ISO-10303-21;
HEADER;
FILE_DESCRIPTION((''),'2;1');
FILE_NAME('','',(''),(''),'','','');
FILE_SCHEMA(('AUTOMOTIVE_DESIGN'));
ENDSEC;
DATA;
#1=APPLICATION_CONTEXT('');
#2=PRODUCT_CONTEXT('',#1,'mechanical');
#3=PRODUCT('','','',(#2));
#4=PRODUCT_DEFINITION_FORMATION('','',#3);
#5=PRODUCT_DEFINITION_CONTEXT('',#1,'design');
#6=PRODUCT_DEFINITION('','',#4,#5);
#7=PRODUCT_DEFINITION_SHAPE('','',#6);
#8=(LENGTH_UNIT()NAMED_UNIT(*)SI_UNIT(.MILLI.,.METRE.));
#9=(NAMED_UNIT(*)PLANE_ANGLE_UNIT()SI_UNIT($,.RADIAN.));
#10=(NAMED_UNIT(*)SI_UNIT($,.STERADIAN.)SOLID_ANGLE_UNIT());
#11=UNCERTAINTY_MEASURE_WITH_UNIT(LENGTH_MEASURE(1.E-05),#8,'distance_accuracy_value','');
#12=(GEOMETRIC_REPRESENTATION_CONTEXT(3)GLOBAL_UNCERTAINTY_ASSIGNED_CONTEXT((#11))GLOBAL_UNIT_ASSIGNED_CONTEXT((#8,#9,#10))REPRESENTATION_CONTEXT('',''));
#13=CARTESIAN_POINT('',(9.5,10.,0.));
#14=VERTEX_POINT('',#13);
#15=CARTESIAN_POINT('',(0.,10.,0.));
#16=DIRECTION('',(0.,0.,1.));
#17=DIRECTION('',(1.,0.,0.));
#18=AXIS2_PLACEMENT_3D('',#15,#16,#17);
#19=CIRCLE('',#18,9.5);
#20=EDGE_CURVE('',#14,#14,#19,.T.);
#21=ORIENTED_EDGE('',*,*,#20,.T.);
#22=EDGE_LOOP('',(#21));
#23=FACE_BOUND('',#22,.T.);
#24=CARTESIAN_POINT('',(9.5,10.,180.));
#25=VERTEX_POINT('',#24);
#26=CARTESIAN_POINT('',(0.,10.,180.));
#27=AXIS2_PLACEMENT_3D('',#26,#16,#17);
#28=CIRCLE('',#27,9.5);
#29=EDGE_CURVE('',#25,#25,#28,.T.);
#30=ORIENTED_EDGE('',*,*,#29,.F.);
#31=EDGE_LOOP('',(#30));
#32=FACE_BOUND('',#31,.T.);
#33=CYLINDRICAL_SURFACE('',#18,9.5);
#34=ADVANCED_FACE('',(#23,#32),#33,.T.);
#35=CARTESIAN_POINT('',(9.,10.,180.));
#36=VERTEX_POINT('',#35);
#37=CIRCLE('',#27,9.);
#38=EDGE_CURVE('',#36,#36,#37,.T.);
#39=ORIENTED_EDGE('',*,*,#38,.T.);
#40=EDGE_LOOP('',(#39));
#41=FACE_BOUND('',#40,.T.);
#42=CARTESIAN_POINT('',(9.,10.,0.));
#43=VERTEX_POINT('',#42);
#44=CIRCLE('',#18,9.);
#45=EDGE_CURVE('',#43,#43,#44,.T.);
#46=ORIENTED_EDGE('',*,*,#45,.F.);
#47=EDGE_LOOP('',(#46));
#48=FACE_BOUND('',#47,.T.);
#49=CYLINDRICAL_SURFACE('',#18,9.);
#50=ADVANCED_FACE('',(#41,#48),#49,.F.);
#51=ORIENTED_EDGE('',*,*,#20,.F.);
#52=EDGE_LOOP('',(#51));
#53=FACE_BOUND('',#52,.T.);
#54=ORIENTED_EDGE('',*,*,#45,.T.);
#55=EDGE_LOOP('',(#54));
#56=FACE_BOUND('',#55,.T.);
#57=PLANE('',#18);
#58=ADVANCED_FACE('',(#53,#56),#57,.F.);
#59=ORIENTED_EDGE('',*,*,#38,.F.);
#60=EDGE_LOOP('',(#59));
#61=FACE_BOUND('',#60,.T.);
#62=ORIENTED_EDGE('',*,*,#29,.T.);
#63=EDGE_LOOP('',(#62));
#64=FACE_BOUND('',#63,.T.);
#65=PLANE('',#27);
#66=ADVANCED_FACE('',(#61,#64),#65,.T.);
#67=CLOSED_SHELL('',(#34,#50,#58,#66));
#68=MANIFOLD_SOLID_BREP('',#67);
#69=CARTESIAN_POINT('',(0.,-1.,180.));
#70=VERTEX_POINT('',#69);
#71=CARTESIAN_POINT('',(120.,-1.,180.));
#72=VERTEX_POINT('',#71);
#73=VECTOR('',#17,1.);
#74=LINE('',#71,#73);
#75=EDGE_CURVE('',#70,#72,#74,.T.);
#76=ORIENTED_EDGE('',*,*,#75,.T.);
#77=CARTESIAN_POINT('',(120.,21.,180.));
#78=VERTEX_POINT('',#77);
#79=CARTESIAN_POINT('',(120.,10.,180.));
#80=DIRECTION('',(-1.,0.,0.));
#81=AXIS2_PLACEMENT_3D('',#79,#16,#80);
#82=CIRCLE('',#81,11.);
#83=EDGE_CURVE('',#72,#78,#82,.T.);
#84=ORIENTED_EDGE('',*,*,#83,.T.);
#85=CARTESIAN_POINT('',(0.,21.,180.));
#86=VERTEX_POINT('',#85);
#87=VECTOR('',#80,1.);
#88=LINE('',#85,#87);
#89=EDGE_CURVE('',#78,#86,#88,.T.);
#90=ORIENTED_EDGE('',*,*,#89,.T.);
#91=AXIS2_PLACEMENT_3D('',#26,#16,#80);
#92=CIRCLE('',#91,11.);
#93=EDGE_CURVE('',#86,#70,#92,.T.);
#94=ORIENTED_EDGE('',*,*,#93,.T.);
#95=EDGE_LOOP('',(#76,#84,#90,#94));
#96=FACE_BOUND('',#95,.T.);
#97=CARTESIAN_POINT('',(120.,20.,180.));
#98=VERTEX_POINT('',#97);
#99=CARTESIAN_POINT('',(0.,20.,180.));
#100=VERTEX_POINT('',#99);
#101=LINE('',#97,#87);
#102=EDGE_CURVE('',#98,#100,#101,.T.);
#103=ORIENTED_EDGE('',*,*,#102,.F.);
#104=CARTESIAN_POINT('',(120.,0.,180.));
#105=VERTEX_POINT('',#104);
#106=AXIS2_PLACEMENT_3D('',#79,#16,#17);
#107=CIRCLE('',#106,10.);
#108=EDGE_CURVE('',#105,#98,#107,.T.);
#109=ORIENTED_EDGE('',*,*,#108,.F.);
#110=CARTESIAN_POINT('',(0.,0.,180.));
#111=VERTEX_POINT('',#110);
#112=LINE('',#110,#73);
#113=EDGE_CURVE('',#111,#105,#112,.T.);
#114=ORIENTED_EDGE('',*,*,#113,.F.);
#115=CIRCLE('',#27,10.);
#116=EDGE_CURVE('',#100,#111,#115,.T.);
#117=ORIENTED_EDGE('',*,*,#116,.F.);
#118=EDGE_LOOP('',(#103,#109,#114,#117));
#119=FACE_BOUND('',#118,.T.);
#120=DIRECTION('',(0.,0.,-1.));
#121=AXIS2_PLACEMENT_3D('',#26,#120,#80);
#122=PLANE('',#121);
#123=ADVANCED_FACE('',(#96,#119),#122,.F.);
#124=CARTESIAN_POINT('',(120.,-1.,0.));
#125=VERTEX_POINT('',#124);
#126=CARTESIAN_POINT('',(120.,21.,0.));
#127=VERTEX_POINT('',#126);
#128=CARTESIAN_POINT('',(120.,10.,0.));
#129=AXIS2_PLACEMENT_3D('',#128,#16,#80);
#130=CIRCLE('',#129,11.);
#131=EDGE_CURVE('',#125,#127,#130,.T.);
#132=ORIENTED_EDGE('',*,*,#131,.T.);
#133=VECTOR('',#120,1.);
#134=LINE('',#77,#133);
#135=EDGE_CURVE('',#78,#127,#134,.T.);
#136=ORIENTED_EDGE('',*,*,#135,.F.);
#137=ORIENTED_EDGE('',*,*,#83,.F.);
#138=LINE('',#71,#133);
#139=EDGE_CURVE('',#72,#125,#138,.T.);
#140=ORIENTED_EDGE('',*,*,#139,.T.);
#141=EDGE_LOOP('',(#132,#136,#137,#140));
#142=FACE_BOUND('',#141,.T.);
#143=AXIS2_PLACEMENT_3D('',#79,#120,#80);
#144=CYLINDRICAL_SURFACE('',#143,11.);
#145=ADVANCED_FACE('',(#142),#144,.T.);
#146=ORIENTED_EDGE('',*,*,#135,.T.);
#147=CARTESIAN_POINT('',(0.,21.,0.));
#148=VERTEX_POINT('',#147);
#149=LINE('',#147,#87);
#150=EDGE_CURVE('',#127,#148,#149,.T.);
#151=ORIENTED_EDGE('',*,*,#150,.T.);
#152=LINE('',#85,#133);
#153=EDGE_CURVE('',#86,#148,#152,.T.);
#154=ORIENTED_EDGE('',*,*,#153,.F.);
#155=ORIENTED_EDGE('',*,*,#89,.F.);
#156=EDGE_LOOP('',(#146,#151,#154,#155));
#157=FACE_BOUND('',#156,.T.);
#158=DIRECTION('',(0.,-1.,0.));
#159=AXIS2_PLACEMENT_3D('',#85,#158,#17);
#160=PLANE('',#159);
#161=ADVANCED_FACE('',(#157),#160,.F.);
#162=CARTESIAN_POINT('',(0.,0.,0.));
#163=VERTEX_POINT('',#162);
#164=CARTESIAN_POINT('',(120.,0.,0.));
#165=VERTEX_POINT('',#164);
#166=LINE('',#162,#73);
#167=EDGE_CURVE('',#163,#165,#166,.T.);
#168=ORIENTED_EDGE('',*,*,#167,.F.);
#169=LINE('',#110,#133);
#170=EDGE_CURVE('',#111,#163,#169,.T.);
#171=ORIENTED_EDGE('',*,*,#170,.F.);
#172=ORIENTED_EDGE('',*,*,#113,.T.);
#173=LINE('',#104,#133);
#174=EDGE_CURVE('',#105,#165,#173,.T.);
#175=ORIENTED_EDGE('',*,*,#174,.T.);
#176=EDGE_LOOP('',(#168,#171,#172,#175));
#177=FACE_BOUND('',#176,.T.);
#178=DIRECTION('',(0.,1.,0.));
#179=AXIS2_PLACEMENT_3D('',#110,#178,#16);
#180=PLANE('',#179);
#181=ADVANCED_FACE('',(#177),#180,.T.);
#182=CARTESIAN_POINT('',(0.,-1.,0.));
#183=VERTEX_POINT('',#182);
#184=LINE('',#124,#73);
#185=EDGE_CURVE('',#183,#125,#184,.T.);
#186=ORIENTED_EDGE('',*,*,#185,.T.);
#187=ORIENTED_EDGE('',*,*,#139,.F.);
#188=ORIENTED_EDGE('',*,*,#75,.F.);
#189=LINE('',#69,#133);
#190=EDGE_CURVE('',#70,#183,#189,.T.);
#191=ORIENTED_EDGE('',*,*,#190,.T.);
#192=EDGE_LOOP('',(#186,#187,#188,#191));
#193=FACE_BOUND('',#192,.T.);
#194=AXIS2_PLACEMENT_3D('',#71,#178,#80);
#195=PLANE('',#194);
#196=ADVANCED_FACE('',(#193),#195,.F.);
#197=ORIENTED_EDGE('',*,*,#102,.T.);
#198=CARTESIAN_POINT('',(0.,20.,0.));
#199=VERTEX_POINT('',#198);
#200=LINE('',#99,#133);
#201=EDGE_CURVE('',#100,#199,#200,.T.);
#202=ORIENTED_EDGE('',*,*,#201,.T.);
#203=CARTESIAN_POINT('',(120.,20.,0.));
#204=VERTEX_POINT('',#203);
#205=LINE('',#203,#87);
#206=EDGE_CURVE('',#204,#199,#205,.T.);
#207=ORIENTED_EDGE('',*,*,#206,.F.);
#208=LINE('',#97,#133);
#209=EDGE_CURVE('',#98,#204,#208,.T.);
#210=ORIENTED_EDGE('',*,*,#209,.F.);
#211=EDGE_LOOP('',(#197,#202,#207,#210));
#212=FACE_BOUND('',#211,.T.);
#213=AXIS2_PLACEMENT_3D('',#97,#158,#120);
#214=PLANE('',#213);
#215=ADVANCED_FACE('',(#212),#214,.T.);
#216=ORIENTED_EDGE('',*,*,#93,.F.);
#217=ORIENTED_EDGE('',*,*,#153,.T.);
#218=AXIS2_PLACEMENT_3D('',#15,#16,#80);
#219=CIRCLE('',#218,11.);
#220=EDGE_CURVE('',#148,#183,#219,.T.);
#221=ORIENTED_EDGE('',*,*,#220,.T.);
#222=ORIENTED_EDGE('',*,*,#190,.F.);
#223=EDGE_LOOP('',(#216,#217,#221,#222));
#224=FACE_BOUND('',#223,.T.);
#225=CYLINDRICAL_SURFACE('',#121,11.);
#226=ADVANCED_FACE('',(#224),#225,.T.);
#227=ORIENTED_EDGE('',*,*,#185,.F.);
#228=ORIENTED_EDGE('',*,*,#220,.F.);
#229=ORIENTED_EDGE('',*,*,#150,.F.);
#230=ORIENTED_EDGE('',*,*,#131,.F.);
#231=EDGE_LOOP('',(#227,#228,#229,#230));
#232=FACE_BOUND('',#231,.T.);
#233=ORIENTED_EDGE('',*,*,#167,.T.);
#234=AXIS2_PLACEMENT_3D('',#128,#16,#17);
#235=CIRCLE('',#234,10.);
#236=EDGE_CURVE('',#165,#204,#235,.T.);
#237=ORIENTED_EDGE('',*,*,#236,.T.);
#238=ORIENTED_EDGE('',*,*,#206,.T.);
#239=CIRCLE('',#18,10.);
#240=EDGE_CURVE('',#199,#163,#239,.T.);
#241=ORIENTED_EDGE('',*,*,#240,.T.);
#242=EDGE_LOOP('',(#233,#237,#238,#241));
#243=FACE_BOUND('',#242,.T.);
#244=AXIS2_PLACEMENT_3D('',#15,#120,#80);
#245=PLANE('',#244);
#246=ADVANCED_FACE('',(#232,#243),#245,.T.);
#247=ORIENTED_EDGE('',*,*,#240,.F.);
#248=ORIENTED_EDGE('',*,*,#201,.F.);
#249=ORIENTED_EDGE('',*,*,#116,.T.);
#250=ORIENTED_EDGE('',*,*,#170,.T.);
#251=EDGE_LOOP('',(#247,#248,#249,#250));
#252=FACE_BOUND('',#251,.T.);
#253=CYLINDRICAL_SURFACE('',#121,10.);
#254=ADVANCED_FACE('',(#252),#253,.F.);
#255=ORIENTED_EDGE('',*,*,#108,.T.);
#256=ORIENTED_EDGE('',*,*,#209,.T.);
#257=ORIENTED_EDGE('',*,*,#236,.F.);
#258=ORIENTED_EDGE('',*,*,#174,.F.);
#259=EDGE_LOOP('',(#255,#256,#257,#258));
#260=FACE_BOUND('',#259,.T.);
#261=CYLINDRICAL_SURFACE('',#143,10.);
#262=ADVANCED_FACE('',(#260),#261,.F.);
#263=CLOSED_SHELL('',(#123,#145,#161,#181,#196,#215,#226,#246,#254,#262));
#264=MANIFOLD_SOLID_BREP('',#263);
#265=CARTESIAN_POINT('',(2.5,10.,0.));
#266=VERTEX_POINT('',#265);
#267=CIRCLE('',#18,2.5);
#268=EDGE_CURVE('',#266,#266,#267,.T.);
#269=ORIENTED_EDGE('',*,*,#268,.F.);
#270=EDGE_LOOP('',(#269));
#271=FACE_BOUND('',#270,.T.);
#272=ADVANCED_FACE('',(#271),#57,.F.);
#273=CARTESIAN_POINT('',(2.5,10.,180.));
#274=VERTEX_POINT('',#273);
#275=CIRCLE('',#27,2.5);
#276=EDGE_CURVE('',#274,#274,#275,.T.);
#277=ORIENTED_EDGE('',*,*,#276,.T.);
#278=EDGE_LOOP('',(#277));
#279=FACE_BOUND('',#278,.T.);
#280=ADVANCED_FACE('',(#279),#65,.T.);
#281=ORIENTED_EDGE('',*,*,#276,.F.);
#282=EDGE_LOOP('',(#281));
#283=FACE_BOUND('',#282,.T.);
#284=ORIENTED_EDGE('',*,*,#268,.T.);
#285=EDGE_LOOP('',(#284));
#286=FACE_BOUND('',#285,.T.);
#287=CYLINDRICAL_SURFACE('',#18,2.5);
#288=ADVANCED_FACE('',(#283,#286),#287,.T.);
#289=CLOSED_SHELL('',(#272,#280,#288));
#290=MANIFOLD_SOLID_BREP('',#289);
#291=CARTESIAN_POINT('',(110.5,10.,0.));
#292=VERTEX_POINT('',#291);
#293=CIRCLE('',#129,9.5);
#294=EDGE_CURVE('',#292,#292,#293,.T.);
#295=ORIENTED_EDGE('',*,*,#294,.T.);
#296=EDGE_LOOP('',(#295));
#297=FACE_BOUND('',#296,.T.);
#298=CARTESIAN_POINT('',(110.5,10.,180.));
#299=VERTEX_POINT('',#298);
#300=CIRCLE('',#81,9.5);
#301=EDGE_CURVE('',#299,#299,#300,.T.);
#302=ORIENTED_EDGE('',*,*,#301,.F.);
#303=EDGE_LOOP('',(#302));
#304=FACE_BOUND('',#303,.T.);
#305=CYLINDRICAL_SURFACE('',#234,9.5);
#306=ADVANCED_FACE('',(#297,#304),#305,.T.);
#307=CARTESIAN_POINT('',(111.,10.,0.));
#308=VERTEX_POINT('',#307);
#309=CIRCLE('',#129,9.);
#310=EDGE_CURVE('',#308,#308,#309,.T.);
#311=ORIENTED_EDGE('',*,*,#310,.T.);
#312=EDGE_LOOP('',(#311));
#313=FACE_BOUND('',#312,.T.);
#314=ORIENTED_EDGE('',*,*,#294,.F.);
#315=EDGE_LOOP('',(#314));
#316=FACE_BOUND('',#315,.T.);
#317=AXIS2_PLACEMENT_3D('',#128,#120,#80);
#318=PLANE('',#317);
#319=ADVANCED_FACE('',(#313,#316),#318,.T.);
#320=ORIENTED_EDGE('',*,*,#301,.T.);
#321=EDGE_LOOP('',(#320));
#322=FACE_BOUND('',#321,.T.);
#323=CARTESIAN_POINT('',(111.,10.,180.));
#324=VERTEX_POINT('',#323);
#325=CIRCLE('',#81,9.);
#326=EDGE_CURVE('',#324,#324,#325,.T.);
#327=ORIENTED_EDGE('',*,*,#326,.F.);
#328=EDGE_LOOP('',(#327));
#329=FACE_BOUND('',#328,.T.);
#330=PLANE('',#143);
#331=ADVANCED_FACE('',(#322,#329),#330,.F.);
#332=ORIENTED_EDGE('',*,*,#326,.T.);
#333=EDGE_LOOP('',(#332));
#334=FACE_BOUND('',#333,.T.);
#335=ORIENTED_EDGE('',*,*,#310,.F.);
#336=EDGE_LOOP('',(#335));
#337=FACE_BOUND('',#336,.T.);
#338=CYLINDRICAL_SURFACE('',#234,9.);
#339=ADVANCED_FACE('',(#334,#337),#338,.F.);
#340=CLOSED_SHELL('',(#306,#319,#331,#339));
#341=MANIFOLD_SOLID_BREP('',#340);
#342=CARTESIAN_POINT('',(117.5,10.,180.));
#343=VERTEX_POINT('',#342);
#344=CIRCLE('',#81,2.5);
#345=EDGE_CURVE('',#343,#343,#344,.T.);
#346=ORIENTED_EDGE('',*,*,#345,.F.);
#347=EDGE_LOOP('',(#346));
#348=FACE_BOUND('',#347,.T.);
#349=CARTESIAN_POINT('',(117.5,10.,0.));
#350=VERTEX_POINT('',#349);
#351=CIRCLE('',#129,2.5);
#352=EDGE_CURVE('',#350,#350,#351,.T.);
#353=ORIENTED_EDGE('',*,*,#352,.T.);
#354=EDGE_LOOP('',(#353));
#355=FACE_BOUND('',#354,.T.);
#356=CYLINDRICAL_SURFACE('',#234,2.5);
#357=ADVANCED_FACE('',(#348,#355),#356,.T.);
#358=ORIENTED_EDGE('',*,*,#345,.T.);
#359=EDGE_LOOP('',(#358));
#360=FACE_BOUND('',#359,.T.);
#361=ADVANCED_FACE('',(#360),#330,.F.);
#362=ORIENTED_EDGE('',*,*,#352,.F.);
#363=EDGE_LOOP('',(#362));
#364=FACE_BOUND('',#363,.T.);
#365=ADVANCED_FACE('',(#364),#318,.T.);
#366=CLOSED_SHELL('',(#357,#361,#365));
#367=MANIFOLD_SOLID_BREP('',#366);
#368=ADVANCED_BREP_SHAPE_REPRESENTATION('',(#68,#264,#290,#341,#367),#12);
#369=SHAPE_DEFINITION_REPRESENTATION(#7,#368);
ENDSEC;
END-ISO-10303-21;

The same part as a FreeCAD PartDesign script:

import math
import FreeCAD as App
import Part
import Sketcher

V = App.Vector

doc = App.newDocument("Part")
body = doc.addObject("PartDesign::Body", "Body")

sketch1 = body.newObject("Sketcher::SketchObject", "Sketch")
sketch1.AttachmentSupport = (doc.getObject("XY_Plane"), [""])
sketch1.MapMode = "FlatFace"
sketch1.addGeometry([
    Part.LineSegment(V(120, 21, 0), V(0, 21, 0)),
    Part.ArcOfCircle(Part.Circle(V(0, 10, 0), V(0, 0, 1), 11), math.radians(90), math.radians(270)),
    Part.LineSegment(V(0, -1, 0), V(120, -1, 0)),
    Part.ArcOfCircle(Part.Circle(V(120, 10, 0), V(0, 0, 1), 11), math.radians(-90), math.radians(90)),
    Part.ArcOfCircle(Part.Circle(V(0, 10, 0), V(0, 0, 1), 10), math.radians(90), math.radians(270)),
    Part.LineSegment(V(0, 20, 0), V(120, 20, 0)),
    Part.ArcOfCircle(Part.Circle(V(120, 10, 0), V(0, 0, 1), 10), math.radians(-90), math.radians(90)),
    Part.LineSegment(V(120, 0, 0), V(0, 0, 0)),
], False)
sketch1.addConstraint([
    Sketcher.Constraint("Tangent", 0, 2, 1, 1),
    Sketcher.Constraint("Tangent", 1, 2, 2, 1),
    Sketcher.Constraint("Tangent", 2, 2, 3, 1),
    Sketcher.Constraint("Tangent", 3, 2, 0, 1),
    Sketcher.Constraint("Tangent", 4, 1, 5, 1),
    Sketcher.Constraint("Tangent", 5, 2, 6, 2),
    Sketcher.Constraint("Tangent", 6, 1, 7, 1),
    Sketcher.Constraint("Tangent", 7, 2, 4, 2),
    Sketcher.Constraint("Horizontal", 0),
    Sketcher.Constraint("Horizontal", 2),
    Sketcher.Constraint("Horizontal", 5),
    Sketcher.Constraint("Horizontal", 7),
    Sketcher.Constraint("Coincident", 7, 2, -1, 1),
    Sketcher.Constraint("Coincident", 4, 3, 1, 3),
    Sketcher.Constraint("Vertical", 6, 3, 2, 2),
    Sketcher.Constraint("Radius", 1, 11.0),
    Sketcher.Constraint("Radius", 4, 10.0),
    Sketcher.Constraint("DistanceX", 0, 2, 0, 1, 120.0),
])
pad1 = body.newObject("PartDesign::Pad", "Pad")
pad1.Profile = sketch1
pad1.Length = 180
body2 = doc.addObject("PartDesign::Body", "Body001")

sketch2 = body2.newObject("Sketcher::SketchObject", "Sketch001")
sketch2.AttachmentSupport = (doc.getObject("XY_Plane001"), [""])
sketch2.MapMode = "FlatFace"
sketch2.AttachmentOffset = App.Placement(V(0, 0, 180), App.Rotation())
sketch2.addGeometry(Part.Circle(V(0, 10, 0), V(0, 0, 1), 2.5), False)
sketch2.addConstraint([
    Sketcher.Constraint("PointOnObject", 0, 3, -2),
    Sketcher.Constraint("Diameter", 0, 5.0),
    Sketcher.Constraint("DistanceY", -1, 1, 0, 3, 10.0),
])
pad2 = body2.newObject("PartDesign::Pad", "Pad001")
pad2.Profile = sketch2
pad2.Length = 180
pad2.Reversed = True
body3 = doc.addObject("PartDesign::Body", "Body002")

sketch3 = body3.newObject("Sketcher::SketchObject", "Sketch002")
sketch3.AttachmentSupport = (doc.getObject("XY_Plane002"), [""])
sketch3.MapMode = "FlatFace"
sketch3.AttachmentOffset = App.Placement(V(0, 0, 180), App.Rotation())
sketch3.addGeometry(Part.Circle(V(120, 10, 0), V(0, 0, 1), 2.5), False)
sketch3.addConstraint([
    Sketcher.Constraint("Diameter", 0, 5.0),
    Sketcher.Constraint("DistanceX", -1, 1, 0, 3, 120.0),
    Sketcher.Constraint("DistanceY", -1, 1, 0, 3, 10.0),
])
pad3 = body3.newObject("PartDesign::Pad", "Pad002")
pad3.Profile = sketch3
pad3.Length = 180
pad3.Reversed = True
body4 = doc.addObject("PartDesign::Body", "Body003")

sketch4 = body4.newObject("Sketcher::SketchObject", "Sketch003")
sketch4.AttachmentSupport = (doc.getObject("XY_Plane003"), [""])
sketch4.MapMode = "FlatFace"
sketch4.AttachmentOffset = App.Placement(V(0, 0, 180), App.Rotation())
sketch4.addGeometry([
    Part.Circle(V(0, 10, 0), V(0, 0, 1), 10),
    Part.Circle(V(0, 10, 0), V(0, 0, 1), 9),
], False)
sketch4.addConstraint([
    Sketcher.Constraint("Coincident", 1, 3, 0, 3),
    Sketcher.Constraint("PointOnObject", 0, 3, -2),
    Sketcher.Constraint("Diameter", 0, 19.0),
    Sketcher.Constraint("Diameter", 1, 18.0),
    Sketcher.Constraint("DistanceY", -1, 1, 0, 3, 10.0),
])
pad4 = body4.newObject("PartDesign::Pad", "Pad003")
pad4.Profile = sketch4
pad4.Length = 180
pad4.Reversed = True
body5 = doc.addObject("PartDesign::Body", "Body004")

sketch5 = body5.newObject("Sketcher::SketchObject", "Sketch004")
sketch5.AttachmentSupport = (doc.getObject("XY_Plane004"), [""])
sketch5.MapMode = "FlatFace"
sketch5.AttachmentOffset = App.Placement(V(0, 0, 180), App.Rotation())
sketch5.addGeometry([
    Part.Circle(V(120, 10, 0), V(0, 0, 1), 10),
    Part.Circle(V(120, 10, 0), V(0, 0, 1), 9),
], False)
sketch5.addConstraint([
    Sketcher.Constraint("Coincident", 1, 3, 0, 3),
    Sketcher.Constraint("Diameter", 0, 19.0),
    Sketcher.Constraint("Diameter", 1, 18.0),
    Sketcher.Constraint("DistanceX", -1, 1, 0, 3, 120.0),
    Sketcher.Constraint("DistanceY", -1, 1, 0, 3, 10.0),
])
pad5 = body5.newObject("PartDesign::Pad", "Pad004")
pad5.Profile = sketch5
pad5.Length = 180
pad5.Reversed = True

doc.recompute()
